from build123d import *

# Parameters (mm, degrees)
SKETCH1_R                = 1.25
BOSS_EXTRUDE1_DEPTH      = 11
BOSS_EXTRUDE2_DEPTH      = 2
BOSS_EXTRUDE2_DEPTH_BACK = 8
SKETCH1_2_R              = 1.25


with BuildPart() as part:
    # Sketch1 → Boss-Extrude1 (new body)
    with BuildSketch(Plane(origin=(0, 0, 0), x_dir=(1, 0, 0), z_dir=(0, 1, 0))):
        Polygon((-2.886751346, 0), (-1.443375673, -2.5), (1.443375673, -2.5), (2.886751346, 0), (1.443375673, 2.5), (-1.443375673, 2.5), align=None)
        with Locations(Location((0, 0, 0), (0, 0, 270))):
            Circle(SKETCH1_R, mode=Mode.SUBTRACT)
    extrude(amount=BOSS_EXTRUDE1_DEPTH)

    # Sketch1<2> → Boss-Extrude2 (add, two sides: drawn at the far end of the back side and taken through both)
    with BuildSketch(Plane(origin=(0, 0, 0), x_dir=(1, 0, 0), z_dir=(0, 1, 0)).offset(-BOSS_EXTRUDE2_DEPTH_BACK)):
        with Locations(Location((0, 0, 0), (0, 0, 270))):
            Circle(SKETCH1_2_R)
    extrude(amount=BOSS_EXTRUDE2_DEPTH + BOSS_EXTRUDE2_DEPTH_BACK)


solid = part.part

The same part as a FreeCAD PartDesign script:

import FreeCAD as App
import Part
import Sketcher
Q = App.Units.Quantity


def add_polygon(sketch, points):
    """Adds a closed chain of lines whose ends are joined by coincident constraints."""
    first, n = sketch.GeometryCount, len(points)
    for a, b in zip(points, points[1:] + points[:1]):
        sketch.addGeometry(Part.LineSegment(App.Vector(*a, 0), App.Vector(*b, 0)), False)
    for i in range(n):
        sketch.addConstraint(Sketcher.Constraint("Coincident", first + i, 2, first + (i + 1) % n, 1))

doc = App.newDocument("Part")
body = doc.addObject("PartDesign::Body", "Body")

sketch1 = doc.addObject("Sketcher::SketchObject", "Sketch")
body.addObject(sketch1)
sketch1.AttachmentSupport = (doc.XZ_Plane, [""])
sketch1.MapMode = "FlatFace"
add_polygon(sketch1, [(-2.9, 0), (-1.4, 2.5), (1.4, 2.5), (2.9, 0), (1.4, -2.5), (-1.4, -2.5)])
sketch1.addGeometry(Part.Circle(App.Vector(0, 0, 0), App.Vector(0, 0, 1), 1.2), False)
sketch1.addConstraint([
    Sketcher.Constraint("Horizontal", 1),
    Sketcher.Constraint("Horizontal", 4),
    Sketcher.Constraint("Coincident", 6, 3, -1, 1),
    Sketcher.Constraint("Symmetric", 0, 2, 3, 2, -1, 1),
    Sketcher.Constraint("Symmetric", 2, 2, 5, 2, -1, 1),
    Sketcher.Constraint("PointOnObject", 2, 2, -1),
    Sketcher.Constraint("Parallel", 2, 5),
    Sketcher.Constraint("Vertical", 1, 2, 3, 2),
    Sketcher.Constraint("Diameter", 6, Q("2.5 mm")),
    Sketcher.Constraint("Angle", 0, Q("60 deg")),
    Sketcher.Constraint("DistanceY", 3, 2, 1, 2, Q("5 mm")),
    Sketcher.Constraint("DistanceX", 1, 1, 1, 2, Q("2.886751 mm")),
])
pad1 = doc.addObject("PartDesign::Pad", "Pad")
body.addObject(pad1)
pad1.Profile = sketch1
pad1.Length = 11
pad1.Reversed = True

sketch2 = doc.addObject("Sketcher::SketchObject", "Sketch001")
body.addObject(sketch2)
sketch2.AttachmentSupport = (doc.XZ_Plane, [""])
sketch2.MapMode = "FlatFace"
sketch2.addGeometry(Part.Circle(App.Vector(0, 0, 0), App.Vector(0, 0, 1), 1.2), False)
sketch2.addConstraint([
    Sketcher.Constraint("Coincident", 0, 3, -1, 1),
    Sketcher.Constraint("Diameter", 0, Q("2.5 mm")),
])
pad2 = doc.addObject("PartDesign::Pad", "Pad001")
body.addObject(pad2)
pad2.Profile = sketch2
pad2.Type = "TwoLengths"
pad2.Length = 2
pad2.Length2 = 8
pad2.Reversed = True

doc.recompute()
